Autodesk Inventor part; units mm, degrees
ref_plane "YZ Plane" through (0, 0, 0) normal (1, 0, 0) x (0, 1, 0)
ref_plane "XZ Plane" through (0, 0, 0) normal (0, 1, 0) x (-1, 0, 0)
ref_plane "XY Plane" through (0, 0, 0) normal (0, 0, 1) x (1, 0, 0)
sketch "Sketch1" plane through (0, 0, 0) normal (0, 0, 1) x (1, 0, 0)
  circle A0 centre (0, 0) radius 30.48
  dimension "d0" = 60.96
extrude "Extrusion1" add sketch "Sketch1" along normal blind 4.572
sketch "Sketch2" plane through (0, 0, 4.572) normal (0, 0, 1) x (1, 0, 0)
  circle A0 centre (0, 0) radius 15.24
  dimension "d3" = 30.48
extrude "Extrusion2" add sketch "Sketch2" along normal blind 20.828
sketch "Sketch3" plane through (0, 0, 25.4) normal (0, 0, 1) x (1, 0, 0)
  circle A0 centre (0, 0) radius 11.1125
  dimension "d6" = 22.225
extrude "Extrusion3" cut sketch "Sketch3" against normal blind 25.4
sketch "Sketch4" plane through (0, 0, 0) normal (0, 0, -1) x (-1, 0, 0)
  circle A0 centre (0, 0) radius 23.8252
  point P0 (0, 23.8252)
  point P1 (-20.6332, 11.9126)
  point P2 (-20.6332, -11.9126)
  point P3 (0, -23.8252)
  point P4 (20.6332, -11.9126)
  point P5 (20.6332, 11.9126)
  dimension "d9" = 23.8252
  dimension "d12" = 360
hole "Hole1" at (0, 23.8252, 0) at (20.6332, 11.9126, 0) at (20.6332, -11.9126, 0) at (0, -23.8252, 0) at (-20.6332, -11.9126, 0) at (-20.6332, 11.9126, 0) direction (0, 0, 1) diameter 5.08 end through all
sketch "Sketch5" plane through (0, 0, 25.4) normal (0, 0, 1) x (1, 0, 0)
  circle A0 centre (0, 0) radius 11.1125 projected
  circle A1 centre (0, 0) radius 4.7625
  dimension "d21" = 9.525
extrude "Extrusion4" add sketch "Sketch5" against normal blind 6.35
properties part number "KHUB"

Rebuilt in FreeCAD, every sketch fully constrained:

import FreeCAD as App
import Part
import Sketcher

V = App.Vector
Q = App.Units.Quantity

doc = App.newDocument("Part")
body = doc.addObject("PartDesign::Body", "Body")

# Sketch on XY plane
sketch1 = doc.addObject("Sketcher::SketchObject", "Sketch")
body.addObject(sketch1)
sketch1.AttachmentSupport = (doc.XY_Plane, [""])
sketch1.MapMode = "FlatFace"
sketch1.addGeometry(Part.Circle(V(0, 0, 0), V(0, 0, 1), 30.48), False)
sketch1.addConstraint(Sketcher.Constraint("Coincident", 0, 3, -1, 1))
sketch1.addConstraint(Sketcher.Constraint("Diameter", 0, Q("2.4 in")))
pad1 = doc.addObject("PartDesign::Pad", "Pad")
body.addObject(pad1)
pad1.Profile = sketch1
pad1.Length = Q("0.18 in")

# Sketch on XY plane
sketch2 = doc.addObject("Sketcher::SketchObject", "Sketch001")
body.addObject(sketch2)
sketch2.AttachmentSupport = (doc.XY_Plane, [""])
sketch2.MapMode = "FlatFace"
sketch2.AttachmentOffset = App.Placement(V(0, 0, 0.18 * 25.4), App.Rotation())
sketch2.addGeometry(Part.Circle(V(0, 0, 0), V(0, 0, 1), 15.24), False)
sketch2.addConstraint(Sketcher.Constraint("Coincident", 0, 3, -1, 1))
sketch2.addConstraint(Sketcher.Constraint("Diameter", 0, Q("1.2 in")))
pad2 = doc.addObject("PartDesign::Pad", "Pad001")
body.addObject(pad2)
pad2.Profile = sketch2
pad2.Length = Q("0.82 in")

# Sketch on XY plane
sketch3 = doc.addObject("Sketcher::SketchObject", "Sketch002")
body.addObject(sketch3)
sketch3.AttachmentSupport = (doc.XY_Plane, [""])
sketch3.MapMode = "FlatFace"
sketch3.AttachmentOffset = App.Placement(V(0, 0, 1 * 25.4), App.Rotation())
sketch3.addGeometry(Part.Circle(V(0, 0, 0), V(0, 0, 1), 11.1125), False)
sketch3.addConstraint(Sketcher.Constraint("Coincident", 0, 3, -1, 1))
sketch3.addConstraint(Sketcher.Constraint("Diameter", 0, Q("0.875 in")))
pocket1 = doc.addObject("PartDesign::Pocket", "Pocket")
body.addObject(pocket1)
pocket1.Profile = sketch3
pocket1.Length = Q("1 in")

# Sketch on XY plane
sketch4 = doc.addObject("Sketcher::SketchObject", "Sketch003")
body.addObject(sketch4)
sketch4.AttachmentSupport = (doc.XY_Plane, [""])
sketch4.MapMode = "FlatFace"
sketch4.addGeometry(Part.Circle(V(0, 23.8252, 0), V(0, 0, 1), 2.54), False)
sketch4.addGeometry(Part.Circle(V(20.6332, 11.9126, 0), V(0, 0, 1), 2.54), False)
sketch4.addGeometry(Part.Circle(V(20.6332, -11.9126, 0), V(0, 0, 1), 2.54), False)
sketch4.addGeometry(Part.Circle(V(0, -23.8252, 0), V(0, 0, 1), 2.54), False)
sketch4.addGeometry(Part.Circle(V(-20.6332, -11.9126, 0), V(0, 0, 1), 2.54), False)
sketch4.addGeometry(Part.Circle(V(-20.6332, 11.9126, 0), V(0, 0, 1), 2.54), False)
sketch4.addConstraint(Sketcher.Constraint("Equal", 0, 1))
sketch4.addConstraint(Sketcher.Constraint("Equal", 1, 2))
sketch4.addConstraint(Sketcher.Constraint("Equal", 2, 3))
sketch4.addConstraint(Sketcher.Constraint("Equal", 3, 4))
sketch4.addConstraint(Sketcher.Constraint("Equal", 4, 5))
sketch4.addConstraint(Sketcher.Constraint("Symmetric", 0, 3, 3, 3, -1, 1))
sketch4.addConstraint(Sketcher.Constraint("Symmetric", 1, 3, 4, 3, -1, 1))
sketch4.addConstraint(Sketcher.Constraint("Symmetric", 2, 3, 5, 3, -1, 1))
sketch4.addConstraint(Sketcher.Constraint("Symmetric", 2, 3, 4, 3, -2))
sketch4.addConstraint(Sketcher.Constraint("PointOnObject", 0, 3, -2))
sketch4.addConstraint(Sketcher.Constraint("Diameter", 0, Q("0.2 in")))
sketch4.addConstraint(Sketcher.Constraint("DistanceY", -1, 1, 0, 3, Q("0.938 in")))
sketch4.addConstraint(Sketcher.Constraint("DistanceY", -1, 1, 1, 3, Q("0.469 in")))
sketch4.addConstraint(Sketcher.Constraint("DistanceX", -1, 1, 1, 3, 20.6332))
doc.recompute()
hole = doc.addObject("PartDesign::Hole", "Hole")
body.addObject(hole)
hole.Profile = sketch4
hole.ThreadType = "None"
hole.Diameter = Q("0.2 in")
hole.DepthType = "ThroughAll"
hole.Reversed = True

# Sketch on XY plane
sketch5 = doc.addObject("Sketcher::SketchObject", "Sketch004")
body.addObject(sketch5)
sketch5.AttachmentSupport = (doc.XY_Plane, [""])
sketch5.MapMode = "FlatFace"
sketch5.AttachmentOffset = App.Placement(V(0, 0, 1 * 25.4), App.Rotation())
sketch5.addGeometry(Part.Circle(V(0, 0, 0), V(0, 0, 1), 11.1125), False)
sketch5.addGeometry(Part.Circle(V(0, 0, 0), V(0, 0, 1), 4.7625), False)
sketch5.addConstraint(Sketcher.Constraint("Coincident", 0, 3, -1, 1))
sketch5.addConstraint(Sketcher.Constraint("Coincident", 1, 3, -1, 1))
sketch5.addConstraint(Sketcher.Constraint("Diameter", 1, Q("0.375 in")))
sketch5.addConstraint(Sketcher.Constraint("Diameter", 0, Q("0.875 in")))
pad3 = doc.addObject("PartDesign::Pad", "Pad002")
body.addObject(pad3)
pad3.Profile = sketch5
pad3.Length = Q("0.25 in")
pad3.Reversed = True

doc.recompute()
